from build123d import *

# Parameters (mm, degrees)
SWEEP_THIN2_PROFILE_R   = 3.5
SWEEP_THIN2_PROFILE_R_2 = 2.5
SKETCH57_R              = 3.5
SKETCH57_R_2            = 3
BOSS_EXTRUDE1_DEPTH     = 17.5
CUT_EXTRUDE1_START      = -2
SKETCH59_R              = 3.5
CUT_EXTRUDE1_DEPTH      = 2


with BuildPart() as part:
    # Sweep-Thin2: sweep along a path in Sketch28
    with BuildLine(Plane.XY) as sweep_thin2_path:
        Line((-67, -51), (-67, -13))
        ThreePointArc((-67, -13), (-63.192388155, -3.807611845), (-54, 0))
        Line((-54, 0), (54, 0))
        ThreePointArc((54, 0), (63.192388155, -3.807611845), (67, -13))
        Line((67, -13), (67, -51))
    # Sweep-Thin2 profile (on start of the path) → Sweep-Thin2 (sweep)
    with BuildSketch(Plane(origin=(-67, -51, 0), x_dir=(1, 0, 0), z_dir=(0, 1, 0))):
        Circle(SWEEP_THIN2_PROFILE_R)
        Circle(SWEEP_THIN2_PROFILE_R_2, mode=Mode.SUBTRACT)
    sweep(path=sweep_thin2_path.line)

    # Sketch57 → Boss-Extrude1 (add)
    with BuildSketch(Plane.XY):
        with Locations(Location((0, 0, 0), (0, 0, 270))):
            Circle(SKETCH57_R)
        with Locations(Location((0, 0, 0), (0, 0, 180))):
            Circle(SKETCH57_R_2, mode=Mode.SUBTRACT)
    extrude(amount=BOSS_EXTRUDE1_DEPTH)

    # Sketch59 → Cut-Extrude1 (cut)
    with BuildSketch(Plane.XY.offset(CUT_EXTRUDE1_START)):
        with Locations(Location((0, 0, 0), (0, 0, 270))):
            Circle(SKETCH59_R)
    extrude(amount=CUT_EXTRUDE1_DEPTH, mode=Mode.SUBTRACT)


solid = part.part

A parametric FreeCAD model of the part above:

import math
import FreeCAD as App
import Part
import Sketcher

V = App.Vector

doc = App.newDocument("Part")
body = doc.addObject("PartDesign::Body", "Body")

sketch1 = body.newObject("Sketcher::SketchObject", "Sketch")
sketch1.AttachmentSupport = (doc.getObject("XZ_Plane"), [""])
sketch1.MapMode = "FlatFace"
sketch1.AttachmentOffset = App.Placement(V(0, 0, 51), App.Rotation())
sketch1.addGeometry(Part.Circle(V(-67, 0, 0), V(0, 0, 1), 3.5), False)
sketch1.addGeometry(Part.Circle(V(-67, 0, 0), V(0, 0, 1), 2.5), False)
sketch1.addConstraint(Sketcher.Constraint("Coincident", 1, 3, 0, 3))
sketch1.addConstraint(Sketcher.Constraint("PointOnObject", 0, 3, -1))
sketch1.addConstraint(Sketcher.Constraint("Diameter", 0, 7.0))
sketch1.addConstraint(Sketcher.Constraint("Diameter", 1, 5.0))
sketch1.addConstraint(Sketcher.Constraint("DistanceX", 0, 3, -1, 1, 67.0))

sketch2 = body.newObject("Sketcher::SketchObject", "Sketch001")
sketch2.AttachmentSupport = (doc.getObject("XY_Plane"), [""])
sketch2.MapMode = "FlatFace"
sketch2.addGeometry(Part.LineSegment(V(-67, -51, 0), V(-67, -13, 0)), False)
sketch2.addGeometry(Part.ArcOfCircle(Part.Circle(V(-54, -13, 0), V(0, 0, 1), 13), math.radians(90), math.radians(180)), False)
sketch2.addGeometry(Part.LineSegment(V(-54, 0, 0), V(54, 0, 0)), False)
sketch2.addGeometry(Part.ArcOfCircle(Part.Circle(V(54, -13, 0), V(0, 0, 1), 13), math.radians(0), math.radians(90)), False)
sketch2.addGeometry(Part.LineSegment(V(67, -13, 0), V(67, -51, 0)), False)
sketch2.addConstraint(Sketcher.Constraint("Tangent", 0, 2, 1, 2))
sketch2.addConstraint(Sketcher.Constraint("Tangent", 1, 1, 2, 1))
sketch2.addConstraint(Sketcher.Constraint("Tangent", 2, 2, 3, 2))
sketch2.addConstraint(Sketcher.Constraint("Tangent", 3, 1, 4, 1))
sketch2.addConstraint(Sketcher.Constraint("Vertical", 0))
sketch2.addConstraint(Sketcher.Constraint("Horizontal", 2))
sketch2.addConstraint(Sketcher.Constraint("Vertical", 4))
sketch2.addConstraint(Sketcher.Constraint("Equal", 1, 3))
sketch2.addConstraint(Sketcher.Constraint("Symmetric", 1, 1, 2, 2, -1, 1))
sketch2.addConstraint(Sketcher.Constraint("Horizontal", 0, 1, 4, 2))
sketch2.addConstraint(Sketcher.Constraint("Radius", 1, 13.0))
sketch2.addConstraint(Sketcher.Constraint("DistanceX", 2, 1, 2, 2, 108.0))
sketch2.addConstraint(Sketcher.Constraint("DistanceY", 0, 1, 0, 2, 38.0))
doc.recompute()

additivepipe = body.newObject("PartDesign::AdditivePipe", "AdditivePipe")
additivepipe.Profile = sketch1
additivepipe.Spine = (sketch2, ["Edge1", "Edge2", "Edge3", "Edge4", "Edge5"])

sketch3 = body.newObject("Sketcher::SketchObject", "Sketch002")
sketch3.AttachmentSupport = (doc.getObject("XY_Plane"), [""])
sketch3.MapMode = "FlatFace"
sketch3.addGeometry(Part.Circle(V(0, 0, 0), V(0, 0, 1), 3.5), False)
sketch3.addGeometry(Part.Circle(V(0, 0, 0), V(0, 0, 1), 3), False)
sketch3.addConstraint(Sketcher.Constraint("Coincident", 0, 3, -1, 1))
sketch3.addConstraint(Sketcher.Constraint("Coincident", 1, 3, -1, 1))
sketch3.addConstraint(Sketcher.Constraint("Diameter", 0, 7.0))
sketch3.addConstraint(Sketcher.Constraint("Diameter", 1, 6.0))
pad1 = body.newObject("PartDesign::Pad", "Pad")
pad1.Profile = sketch3
pad1.Length = 17.5

sketch4 = body.newObject("Sketcher::SketchObject", "Sketch003")
sketch4.AttachmentSupport = (doc.getObject("XY_Plane"), [""])
sketch4.MapMode = "FlatFace"
sketch4.AttachmentOffset = App.Placement(V(0, 0, -2), App.Rotation())
sketch4.addGeometry(Part.Circle(V(0, 0, 0), V(0, 0, 1), 3.5), False)
sketch4.addConstraint(Sketcher.Constraint("Coincident", 0, 3, -1, 1))
sketch4.addConstraint(Sketcher.Constraint("Diameter", 0, 7.0))
pocket1 = body.newObject("PartDesign::Pocket", "Pocket")
pocket1.Profile = sketch4
pocket1.Length = 2
pocket1.Reversed = True

doc.recompute()
